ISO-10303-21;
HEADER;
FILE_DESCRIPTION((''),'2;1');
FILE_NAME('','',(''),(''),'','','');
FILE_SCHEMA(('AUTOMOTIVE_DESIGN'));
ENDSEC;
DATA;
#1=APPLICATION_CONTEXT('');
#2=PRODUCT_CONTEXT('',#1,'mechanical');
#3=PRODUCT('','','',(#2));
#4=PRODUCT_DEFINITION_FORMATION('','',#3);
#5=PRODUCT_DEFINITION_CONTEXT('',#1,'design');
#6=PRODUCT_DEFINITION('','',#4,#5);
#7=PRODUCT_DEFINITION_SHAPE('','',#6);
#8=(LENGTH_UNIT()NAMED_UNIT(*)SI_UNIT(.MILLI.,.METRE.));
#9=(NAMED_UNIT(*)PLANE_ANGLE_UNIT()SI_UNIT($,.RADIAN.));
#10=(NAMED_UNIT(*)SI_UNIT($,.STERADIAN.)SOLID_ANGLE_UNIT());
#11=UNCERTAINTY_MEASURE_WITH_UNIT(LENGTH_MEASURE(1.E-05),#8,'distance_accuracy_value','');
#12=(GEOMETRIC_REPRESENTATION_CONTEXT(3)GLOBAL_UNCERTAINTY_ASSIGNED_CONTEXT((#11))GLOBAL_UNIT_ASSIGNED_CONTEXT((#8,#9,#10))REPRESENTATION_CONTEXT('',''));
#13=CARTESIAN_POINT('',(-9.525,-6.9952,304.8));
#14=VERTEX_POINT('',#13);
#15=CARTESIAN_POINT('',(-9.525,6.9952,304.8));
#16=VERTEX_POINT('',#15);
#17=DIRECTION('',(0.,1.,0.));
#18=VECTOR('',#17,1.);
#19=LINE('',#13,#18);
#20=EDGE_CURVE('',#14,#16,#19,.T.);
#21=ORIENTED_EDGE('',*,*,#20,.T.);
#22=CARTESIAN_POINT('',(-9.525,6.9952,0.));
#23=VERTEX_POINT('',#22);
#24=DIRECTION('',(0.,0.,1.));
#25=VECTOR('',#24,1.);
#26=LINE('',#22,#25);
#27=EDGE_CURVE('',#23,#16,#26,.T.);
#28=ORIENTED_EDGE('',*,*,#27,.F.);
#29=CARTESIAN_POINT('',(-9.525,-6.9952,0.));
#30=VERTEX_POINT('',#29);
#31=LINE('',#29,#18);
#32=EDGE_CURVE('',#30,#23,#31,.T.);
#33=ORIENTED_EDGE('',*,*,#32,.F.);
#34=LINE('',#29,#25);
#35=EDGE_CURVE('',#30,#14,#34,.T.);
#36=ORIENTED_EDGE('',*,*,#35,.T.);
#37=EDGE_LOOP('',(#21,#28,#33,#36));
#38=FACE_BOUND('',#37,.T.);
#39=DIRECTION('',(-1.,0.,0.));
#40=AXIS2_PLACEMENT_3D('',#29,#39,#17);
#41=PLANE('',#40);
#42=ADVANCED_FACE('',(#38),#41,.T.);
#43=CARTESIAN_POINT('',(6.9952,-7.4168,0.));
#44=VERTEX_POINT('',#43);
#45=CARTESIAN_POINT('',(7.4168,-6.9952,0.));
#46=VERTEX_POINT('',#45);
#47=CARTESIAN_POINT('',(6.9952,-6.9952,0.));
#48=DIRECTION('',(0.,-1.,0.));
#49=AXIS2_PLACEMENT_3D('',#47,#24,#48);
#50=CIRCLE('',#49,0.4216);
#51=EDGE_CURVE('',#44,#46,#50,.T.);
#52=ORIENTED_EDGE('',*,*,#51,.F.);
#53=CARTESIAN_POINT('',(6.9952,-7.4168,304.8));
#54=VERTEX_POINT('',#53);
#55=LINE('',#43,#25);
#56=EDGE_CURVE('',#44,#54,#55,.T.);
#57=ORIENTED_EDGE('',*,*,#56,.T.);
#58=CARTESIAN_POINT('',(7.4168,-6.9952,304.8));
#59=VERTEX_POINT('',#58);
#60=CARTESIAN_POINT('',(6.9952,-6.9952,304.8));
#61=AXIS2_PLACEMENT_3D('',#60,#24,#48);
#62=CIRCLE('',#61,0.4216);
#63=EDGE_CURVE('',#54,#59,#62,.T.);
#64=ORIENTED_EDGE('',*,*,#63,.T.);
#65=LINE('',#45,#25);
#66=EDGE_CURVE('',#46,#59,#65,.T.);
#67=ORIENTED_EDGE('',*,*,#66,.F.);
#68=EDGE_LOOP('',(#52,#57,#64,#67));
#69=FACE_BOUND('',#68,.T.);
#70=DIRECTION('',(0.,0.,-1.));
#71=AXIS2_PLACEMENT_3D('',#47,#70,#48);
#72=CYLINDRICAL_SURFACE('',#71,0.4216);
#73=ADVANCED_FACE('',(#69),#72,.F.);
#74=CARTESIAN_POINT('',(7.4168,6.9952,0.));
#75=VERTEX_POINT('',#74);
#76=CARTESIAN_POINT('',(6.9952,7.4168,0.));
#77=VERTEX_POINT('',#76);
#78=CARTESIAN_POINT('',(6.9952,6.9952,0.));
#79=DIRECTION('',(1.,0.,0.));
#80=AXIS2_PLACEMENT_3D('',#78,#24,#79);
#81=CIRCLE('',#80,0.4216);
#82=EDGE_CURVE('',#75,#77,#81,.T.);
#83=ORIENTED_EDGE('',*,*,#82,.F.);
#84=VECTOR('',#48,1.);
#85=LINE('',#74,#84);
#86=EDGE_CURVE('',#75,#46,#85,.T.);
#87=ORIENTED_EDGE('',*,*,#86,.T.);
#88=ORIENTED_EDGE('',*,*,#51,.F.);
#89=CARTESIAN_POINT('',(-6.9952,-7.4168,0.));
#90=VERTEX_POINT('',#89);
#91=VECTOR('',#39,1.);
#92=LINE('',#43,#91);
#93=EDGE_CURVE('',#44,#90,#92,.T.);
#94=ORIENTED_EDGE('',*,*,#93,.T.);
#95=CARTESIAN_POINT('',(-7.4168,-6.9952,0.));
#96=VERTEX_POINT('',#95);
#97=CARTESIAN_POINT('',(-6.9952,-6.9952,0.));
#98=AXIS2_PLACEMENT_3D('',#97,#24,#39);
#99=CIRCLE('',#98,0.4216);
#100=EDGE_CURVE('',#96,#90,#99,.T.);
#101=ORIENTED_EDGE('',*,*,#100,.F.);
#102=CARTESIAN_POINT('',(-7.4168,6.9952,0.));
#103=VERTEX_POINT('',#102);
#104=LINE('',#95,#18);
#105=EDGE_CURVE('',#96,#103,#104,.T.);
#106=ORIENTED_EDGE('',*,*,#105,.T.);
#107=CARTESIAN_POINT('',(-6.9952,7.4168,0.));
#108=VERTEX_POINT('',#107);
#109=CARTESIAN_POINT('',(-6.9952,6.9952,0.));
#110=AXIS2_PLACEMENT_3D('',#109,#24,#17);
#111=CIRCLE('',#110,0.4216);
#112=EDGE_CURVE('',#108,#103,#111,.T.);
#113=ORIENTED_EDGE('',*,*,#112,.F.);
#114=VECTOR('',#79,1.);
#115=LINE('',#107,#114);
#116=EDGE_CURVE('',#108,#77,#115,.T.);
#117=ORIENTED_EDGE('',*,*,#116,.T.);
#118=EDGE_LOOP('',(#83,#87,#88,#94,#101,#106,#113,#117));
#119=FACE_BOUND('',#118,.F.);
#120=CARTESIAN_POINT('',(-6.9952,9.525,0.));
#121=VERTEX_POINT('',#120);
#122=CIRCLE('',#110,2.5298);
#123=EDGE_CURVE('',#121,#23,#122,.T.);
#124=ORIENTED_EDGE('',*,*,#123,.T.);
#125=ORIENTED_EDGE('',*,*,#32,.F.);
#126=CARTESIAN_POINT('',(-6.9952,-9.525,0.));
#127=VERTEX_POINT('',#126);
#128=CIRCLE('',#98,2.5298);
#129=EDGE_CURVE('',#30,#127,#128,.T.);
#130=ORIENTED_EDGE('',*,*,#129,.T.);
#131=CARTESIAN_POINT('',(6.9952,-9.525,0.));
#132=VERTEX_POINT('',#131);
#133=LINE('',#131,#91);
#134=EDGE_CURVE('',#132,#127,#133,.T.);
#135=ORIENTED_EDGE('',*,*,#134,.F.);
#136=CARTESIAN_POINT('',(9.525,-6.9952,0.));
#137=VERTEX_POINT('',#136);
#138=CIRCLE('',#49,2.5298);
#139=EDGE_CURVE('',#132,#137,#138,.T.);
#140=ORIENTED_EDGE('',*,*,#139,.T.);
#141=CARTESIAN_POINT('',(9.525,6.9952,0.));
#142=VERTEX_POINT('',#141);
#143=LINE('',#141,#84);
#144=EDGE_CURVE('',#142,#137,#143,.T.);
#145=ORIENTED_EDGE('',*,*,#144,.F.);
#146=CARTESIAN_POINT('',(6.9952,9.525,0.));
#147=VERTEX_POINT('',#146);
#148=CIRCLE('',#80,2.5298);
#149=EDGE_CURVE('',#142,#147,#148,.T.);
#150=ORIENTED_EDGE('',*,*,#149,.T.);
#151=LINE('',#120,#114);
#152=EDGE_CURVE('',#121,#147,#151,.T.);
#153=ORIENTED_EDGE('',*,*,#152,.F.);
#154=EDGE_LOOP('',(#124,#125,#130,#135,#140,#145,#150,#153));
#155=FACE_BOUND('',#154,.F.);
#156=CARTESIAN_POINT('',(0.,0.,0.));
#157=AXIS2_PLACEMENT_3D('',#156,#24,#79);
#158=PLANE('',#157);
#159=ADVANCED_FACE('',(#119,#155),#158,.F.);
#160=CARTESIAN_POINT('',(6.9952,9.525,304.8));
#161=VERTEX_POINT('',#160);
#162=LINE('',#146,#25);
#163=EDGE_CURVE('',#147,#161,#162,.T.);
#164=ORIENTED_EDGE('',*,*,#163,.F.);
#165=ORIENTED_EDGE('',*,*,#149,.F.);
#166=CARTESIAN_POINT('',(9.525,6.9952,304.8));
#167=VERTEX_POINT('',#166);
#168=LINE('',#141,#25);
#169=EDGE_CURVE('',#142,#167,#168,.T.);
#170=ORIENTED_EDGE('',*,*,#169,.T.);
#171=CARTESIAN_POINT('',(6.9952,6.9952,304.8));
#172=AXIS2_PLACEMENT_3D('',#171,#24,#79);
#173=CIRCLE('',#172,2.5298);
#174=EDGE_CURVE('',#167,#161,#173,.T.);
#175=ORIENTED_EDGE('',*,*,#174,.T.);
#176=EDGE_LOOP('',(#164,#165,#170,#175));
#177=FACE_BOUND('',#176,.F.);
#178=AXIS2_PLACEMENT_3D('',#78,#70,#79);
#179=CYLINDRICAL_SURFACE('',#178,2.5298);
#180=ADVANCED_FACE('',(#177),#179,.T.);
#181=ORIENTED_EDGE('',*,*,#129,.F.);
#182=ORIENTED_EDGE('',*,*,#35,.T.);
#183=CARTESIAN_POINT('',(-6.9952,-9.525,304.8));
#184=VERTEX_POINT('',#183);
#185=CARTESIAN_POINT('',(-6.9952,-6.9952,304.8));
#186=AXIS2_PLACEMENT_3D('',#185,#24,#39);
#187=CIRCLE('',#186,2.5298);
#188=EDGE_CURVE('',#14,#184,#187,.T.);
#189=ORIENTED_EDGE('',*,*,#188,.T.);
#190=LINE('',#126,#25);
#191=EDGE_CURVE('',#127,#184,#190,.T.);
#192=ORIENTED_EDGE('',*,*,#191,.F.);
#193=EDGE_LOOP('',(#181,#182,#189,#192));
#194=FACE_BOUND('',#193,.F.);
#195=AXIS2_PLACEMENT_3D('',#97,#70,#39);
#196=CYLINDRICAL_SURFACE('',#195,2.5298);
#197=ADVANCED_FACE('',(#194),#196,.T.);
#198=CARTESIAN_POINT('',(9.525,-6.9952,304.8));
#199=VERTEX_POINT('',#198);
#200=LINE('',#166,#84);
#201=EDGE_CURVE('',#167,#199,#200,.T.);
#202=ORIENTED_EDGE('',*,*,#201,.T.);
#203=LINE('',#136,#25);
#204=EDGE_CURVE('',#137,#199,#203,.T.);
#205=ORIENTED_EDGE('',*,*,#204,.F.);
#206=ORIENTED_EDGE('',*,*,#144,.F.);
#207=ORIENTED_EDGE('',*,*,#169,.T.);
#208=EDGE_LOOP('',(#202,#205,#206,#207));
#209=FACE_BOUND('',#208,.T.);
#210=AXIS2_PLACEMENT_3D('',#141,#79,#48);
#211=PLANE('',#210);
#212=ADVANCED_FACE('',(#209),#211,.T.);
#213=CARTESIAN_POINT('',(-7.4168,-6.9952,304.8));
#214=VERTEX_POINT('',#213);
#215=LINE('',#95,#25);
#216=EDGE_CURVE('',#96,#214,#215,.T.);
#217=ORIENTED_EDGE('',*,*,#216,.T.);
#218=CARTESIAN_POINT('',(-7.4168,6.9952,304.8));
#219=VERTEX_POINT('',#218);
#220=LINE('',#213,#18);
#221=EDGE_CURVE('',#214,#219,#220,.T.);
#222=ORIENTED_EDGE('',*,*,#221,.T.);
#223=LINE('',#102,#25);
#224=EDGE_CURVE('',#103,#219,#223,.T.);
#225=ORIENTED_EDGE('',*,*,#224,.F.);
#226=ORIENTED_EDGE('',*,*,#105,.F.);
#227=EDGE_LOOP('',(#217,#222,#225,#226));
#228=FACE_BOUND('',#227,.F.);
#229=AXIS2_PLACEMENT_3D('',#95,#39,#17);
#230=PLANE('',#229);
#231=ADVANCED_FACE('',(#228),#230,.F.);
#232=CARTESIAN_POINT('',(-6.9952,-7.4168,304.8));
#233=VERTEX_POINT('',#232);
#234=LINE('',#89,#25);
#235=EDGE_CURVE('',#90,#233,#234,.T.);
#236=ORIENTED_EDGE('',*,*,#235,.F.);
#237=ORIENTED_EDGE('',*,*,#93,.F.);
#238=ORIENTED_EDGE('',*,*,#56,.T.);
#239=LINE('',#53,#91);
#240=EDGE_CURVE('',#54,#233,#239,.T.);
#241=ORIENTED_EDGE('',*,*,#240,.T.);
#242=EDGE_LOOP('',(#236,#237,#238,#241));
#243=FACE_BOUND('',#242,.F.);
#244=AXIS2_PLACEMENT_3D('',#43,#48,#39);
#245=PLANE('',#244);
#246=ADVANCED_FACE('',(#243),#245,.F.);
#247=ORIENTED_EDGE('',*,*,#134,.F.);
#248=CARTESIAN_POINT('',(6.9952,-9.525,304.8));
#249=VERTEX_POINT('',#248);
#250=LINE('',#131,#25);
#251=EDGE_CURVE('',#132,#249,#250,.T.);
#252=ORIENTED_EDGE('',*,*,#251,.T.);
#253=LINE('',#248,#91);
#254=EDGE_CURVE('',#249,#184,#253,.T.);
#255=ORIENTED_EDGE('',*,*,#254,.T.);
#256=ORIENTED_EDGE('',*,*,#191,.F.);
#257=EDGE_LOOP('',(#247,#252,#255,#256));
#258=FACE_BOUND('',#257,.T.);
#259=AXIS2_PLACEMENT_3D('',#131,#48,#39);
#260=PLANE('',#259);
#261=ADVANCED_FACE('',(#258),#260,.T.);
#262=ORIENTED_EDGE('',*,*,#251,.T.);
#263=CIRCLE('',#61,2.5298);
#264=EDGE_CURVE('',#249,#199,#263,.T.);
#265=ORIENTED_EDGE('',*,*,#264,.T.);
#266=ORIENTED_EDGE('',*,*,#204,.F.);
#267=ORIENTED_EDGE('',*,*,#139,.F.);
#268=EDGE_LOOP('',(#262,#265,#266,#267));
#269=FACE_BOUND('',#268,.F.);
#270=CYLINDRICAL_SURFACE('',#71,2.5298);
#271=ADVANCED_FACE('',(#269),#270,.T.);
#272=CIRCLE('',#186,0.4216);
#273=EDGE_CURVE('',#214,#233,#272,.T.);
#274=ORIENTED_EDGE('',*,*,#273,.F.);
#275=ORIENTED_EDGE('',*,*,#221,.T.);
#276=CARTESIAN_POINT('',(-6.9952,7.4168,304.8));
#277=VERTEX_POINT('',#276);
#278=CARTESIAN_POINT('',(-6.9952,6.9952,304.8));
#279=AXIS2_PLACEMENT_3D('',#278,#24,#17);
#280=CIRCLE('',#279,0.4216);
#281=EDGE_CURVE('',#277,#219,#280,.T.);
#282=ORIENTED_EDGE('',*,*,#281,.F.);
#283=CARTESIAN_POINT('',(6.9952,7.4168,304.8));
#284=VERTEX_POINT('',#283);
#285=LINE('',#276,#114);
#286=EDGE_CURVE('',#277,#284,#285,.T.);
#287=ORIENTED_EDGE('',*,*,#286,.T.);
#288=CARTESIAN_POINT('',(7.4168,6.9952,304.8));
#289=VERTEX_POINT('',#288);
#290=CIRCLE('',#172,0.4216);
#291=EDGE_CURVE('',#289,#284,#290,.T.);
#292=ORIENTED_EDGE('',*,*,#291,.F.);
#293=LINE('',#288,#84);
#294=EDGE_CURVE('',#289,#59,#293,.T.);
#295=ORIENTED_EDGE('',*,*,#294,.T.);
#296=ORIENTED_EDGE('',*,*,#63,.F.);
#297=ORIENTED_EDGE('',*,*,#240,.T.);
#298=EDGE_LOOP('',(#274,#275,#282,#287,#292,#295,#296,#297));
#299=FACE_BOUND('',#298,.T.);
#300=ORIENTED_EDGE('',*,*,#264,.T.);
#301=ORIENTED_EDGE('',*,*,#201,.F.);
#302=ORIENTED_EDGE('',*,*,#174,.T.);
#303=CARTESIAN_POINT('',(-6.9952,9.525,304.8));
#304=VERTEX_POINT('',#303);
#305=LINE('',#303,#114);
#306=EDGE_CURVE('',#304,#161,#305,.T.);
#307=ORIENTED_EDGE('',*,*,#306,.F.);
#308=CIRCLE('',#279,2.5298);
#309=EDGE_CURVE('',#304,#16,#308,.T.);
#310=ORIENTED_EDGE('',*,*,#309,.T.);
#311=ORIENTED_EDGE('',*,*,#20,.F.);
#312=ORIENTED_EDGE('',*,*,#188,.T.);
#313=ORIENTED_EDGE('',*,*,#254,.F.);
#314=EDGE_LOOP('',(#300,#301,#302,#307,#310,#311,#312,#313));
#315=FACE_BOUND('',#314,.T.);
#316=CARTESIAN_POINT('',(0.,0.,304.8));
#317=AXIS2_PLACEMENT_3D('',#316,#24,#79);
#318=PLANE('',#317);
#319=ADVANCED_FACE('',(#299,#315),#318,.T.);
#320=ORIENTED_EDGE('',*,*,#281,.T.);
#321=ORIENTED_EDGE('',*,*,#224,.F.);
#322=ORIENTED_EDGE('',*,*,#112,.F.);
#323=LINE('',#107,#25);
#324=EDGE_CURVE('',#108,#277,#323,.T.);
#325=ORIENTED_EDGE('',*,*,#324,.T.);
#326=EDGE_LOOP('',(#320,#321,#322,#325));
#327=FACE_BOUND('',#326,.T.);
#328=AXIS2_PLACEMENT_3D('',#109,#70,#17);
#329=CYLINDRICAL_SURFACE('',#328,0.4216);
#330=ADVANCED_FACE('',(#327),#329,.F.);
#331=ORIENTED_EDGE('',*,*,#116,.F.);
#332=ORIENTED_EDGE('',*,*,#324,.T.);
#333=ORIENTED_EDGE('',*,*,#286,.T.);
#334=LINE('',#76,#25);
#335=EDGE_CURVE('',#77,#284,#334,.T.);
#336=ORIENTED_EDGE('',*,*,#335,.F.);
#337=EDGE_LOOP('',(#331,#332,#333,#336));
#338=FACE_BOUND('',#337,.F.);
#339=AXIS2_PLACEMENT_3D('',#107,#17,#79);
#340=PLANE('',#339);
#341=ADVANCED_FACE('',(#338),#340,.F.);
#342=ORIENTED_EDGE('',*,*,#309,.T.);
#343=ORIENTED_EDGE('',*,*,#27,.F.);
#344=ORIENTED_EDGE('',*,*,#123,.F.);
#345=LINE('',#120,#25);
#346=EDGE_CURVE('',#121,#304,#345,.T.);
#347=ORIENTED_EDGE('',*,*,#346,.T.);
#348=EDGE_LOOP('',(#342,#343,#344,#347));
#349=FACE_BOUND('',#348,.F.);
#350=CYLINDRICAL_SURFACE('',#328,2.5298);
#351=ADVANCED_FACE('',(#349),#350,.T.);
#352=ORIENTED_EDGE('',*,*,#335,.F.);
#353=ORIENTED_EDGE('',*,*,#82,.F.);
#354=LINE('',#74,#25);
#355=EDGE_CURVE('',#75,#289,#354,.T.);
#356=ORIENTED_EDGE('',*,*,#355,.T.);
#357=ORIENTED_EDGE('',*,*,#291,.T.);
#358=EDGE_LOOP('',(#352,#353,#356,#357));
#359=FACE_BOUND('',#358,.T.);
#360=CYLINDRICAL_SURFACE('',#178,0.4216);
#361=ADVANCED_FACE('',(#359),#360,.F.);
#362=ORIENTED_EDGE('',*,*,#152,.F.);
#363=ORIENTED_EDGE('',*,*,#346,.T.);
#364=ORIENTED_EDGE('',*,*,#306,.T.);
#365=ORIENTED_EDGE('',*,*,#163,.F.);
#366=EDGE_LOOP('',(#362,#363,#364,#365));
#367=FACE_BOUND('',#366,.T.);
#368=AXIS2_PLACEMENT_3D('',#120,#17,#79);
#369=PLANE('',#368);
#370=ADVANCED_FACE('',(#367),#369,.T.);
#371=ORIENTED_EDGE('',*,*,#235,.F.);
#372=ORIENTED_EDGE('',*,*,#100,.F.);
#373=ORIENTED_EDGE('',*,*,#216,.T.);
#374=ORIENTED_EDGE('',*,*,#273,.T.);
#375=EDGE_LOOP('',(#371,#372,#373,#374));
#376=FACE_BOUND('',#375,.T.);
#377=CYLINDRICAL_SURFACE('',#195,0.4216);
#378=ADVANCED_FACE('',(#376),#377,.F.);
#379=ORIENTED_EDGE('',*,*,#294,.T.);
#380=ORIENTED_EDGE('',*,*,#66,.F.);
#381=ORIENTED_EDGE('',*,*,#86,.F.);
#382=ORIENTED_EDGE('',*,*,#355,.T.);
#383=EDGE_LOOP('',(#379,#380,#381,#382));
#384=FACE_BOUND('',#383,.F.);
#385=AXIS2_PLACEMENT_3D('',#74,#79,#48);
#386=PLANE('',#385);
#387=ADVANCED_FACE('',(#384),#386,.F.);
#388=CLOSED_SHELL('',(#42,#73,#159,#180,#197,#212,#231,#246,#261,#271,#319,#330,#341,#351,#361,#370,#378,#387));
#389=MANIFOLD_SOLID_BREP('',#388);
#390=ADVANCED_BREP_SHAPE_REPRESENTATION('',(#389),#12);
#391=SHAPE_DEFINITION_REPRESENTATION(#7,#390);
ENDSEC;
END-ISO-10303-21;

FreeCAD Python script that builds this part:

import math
import FreeCAD as App
import Part
import Sketcher
Q = App.Units.Quantity

doc = App.newDocument("Part")
body = doc.addObject("PartDesign::Body", "Body")

sketch1 = doc.addObject("Sketcher::SketchObject", "Sketch")
body.addObject(sketch1)
sketch1.AttachmentSupport = (doc.XY_Plane, [""])
sketch1.MapMode = "FlatFace"
sketch1.addGeometry(Part.LineSegment(App.Vector(-9.525, 6.9952, 0), App.Vector(-9.525, -6.9952, 0)), False)
sketch1.addGeometry(Part.ArcOfCircle(Part.Circle(App.Vector(-6.9952, -6.9952, 0), App.Vector(0, 0, 1), 2.5298), math.radians(180), math.radians(270)), False)
sketch1.addGeometry(Part.LineSegment(App.Vector(-6.9952, -9.525, 0), App.Vector(6.9952, -9.525, 0)), False)
sketch1.addGeometry(Part.ArcOfCircle(Part.Circle(App.Vector(6.9952, -6.9952, 0), App.Vector(0, 0, 1), 2.5298), math.radians(-90), math.radians(0)), False)
sketch1.addGeometry(Part.LineSegment(App.Vector(9.525, -6.9952, 0), App.Vector(9.525, 6.9952, 0)), False)
sketch1.addGeometry(Part.ArcOfCircle(Part.Circle(App.Vector(6.9952, 6.9952, 0), App.Vector(0, 0, 1), 2.5298), math.radians(0), math.radians(90)), False)
sketch1.addGeometry(Part.LineSegment(App.Vector(6.9952, 9.525, 0), App.Vector(-6.9952, 9.525, 0)), False)
sketch1.addGeometry(Part.ArcOfCircle(Part.Circle(App.Vector(-6.9952, 6.9952, 0), App.Vector(0, 0, 1), 2.5298), math.radians(90), math.radians(180)), False)
sketch1.addGeometry(Part.ArcOfCircle(Part.Circle(App.Vector(-6.9952, 6.9952, 0), App.Vector(0, 0, 1), 0.4216), math.radians(90), math.radians(180)), False)
sketch1.addGeometry(Part.LineSegment(App.Vector(-6.9952, 7.4168, 0), App.Vector(6.9952, 7.4168, 0)), False)
sketch1.addGeometry(Part.ArcOfCircle(Part.Circle(App.Vector(6.9952, 6.9952, 0), App.Vector(0, 0, 1), 0.4216), math.radians(0), math.radians(90)), False)
sketch1.addGeometry(Part.LineSegment(App.Vector(7.4168, 6.9952, 0), App.Vector(7.4168, -6.9952, 0)), False)
sketch1.addGeometry(Part.ArcOfCircle(Part.Circle(App.Vector(6.9952, -6.9952, 0), App.Vector(0, 0, 1), 0.4216), math.radians(-90), math.radians(0)), False)
sketch1.addGeometry(Part.LineSegment(App.Vector(6.9952, -7.4168, 0), App.Vector(-6.9952, -7.4168, 0)), False)
sketch1.addGeometry(Part.ArcOfCircle(Part.Circle(App.Vector(-6.9952, -6.9952, 0), App.Vector(0, 0, 1), 0.4216), math.radians(180), math.radians(270)), False)
sketch1.addGeometry(Part.LineSegment(App.Vector(-7.4168, -6.9952, 0), App.Vector(-7.4168, 6.9952, 0)), False)
sketch1.addConstraint(Sketcher.Constraint("Tangent", 0, 2, 1, 1))
sketch1.addConstraint(Sketcher.Constraint("Tangent", 1, 2, 2, 1))
sketch1.addConstraint(Sketcher.Constraint("Tangent", 2, 2, 3, 1))
sketch1.addConstraint(Sketcher.Constraint("Tangent", 3, 2, 4, 1))
sketch1.addConstraint(Sketcher.Constraint("Tangent", 4, 2, 5, 1))
sketch1.addConstraint(Sketcher.Constraint("Tangent", 5, 2, 6, 1))
sketch1.addConstraint(Sketcher.Constraint("Tangent", 6, 2, 7, 1))
sketch1.addConstraint(Sketcher.Constraint("Tangent", 7, 2, 0, 1))
sketch1.addConstraint(Sketcher.Constraint("Tangent", 8, 1, 9, 1))
sketch1.addConstraint(Sketcher.Constraint("Tangent", 9, 2, 10, 2))
sketch1.addConstraint(Sketcher.Constraint("Tangent", 10, 1, 11, 1))
sketch1.addConstraint(Sketcher.Constraint("Tangent", 11, 2, 12, 2))
sketch1.addConstraint(Sketcher.Constraint("Tangent", 12, 1, 13, 1))
sketch1.addConstraint(Sketcher.Constraint("Tangent", 13, 2, 14, 2))
sketch1.addConstraint(Sketcher.Constraint("Tangent", 14, 1, 15, 1))
sketch1.addConstraint(Sketcher.Constraint("Tangent", 15, 2, 8, 2))
sketch1.addConstraint(Sketcher.Constraint("Vertical", 0))
sketch1.addConstraint(Sketcher.Constraint("Horizontal", 2))
sketch1.addConstraint(Sketcher.Constraint("Vertical", 4))
sketch1.addConstraint(Sketcher.Constraint("Horizontal", 6))
sketch1.addConstraint(Sketcher.Constraint("Horizontal", 9))
sketch1.addConstraint(Sketcher.Constraint("Vertical", 11))
sketch1.addConstraint(Sketcher.Constraint("Horizontal", 13))
sketch1.addConstraint(Sketcher.Constraint("Vertical", 15))
sketch1.addConstraint(Sketcher.Constraint("Coincident", 8, 3, 7, 3))
sketch1.addConstraint(Sketcher.Constraint("Coincident", 10, 3, 5, 3))
sketch1.addConstraint(Sketcher.Constraint("Coincident", 12, 3, 3, 3))
sketch1.addConstraint(Sketcher.Constraint("Equal", 1, 3))
sketch1.addConstraint(Sketcher.Constraint("Equal", 3, 5))
sketch1.addConstraint(Sketcher.Constraint("Equal", 5, 7))
sketch1.addConstraint(Sketcher.Constraint("Equal", 12, 14))
sketch1.addConstraint(Sketcher.Constraint("Symmetric", 1, 3, 5, 3, -1, 1))
sketch1.addConstraint(Sketcher.Constraint("Equal", 13, 0))
sketch1.addConstraint(Sketcher.Constraint("Radius", 1, Q("0.0996 in")))
sketch1.addConstraint(Sketcher.Constraint("DistanceX", 0, 2, -1, 1, Q("0.375 in")))
sketch1.addConstraint(Sketcher.Constraint("DistanceY", 8, 1, 6, 2, Q("0.083 in")))
pad1 = doc.addObject("PartDesign::Pad", "Pad")
body.addObject(pad1)
pad1.Profile = sketch1
pad1.Length = Q("12 in")

doc.recompute()
